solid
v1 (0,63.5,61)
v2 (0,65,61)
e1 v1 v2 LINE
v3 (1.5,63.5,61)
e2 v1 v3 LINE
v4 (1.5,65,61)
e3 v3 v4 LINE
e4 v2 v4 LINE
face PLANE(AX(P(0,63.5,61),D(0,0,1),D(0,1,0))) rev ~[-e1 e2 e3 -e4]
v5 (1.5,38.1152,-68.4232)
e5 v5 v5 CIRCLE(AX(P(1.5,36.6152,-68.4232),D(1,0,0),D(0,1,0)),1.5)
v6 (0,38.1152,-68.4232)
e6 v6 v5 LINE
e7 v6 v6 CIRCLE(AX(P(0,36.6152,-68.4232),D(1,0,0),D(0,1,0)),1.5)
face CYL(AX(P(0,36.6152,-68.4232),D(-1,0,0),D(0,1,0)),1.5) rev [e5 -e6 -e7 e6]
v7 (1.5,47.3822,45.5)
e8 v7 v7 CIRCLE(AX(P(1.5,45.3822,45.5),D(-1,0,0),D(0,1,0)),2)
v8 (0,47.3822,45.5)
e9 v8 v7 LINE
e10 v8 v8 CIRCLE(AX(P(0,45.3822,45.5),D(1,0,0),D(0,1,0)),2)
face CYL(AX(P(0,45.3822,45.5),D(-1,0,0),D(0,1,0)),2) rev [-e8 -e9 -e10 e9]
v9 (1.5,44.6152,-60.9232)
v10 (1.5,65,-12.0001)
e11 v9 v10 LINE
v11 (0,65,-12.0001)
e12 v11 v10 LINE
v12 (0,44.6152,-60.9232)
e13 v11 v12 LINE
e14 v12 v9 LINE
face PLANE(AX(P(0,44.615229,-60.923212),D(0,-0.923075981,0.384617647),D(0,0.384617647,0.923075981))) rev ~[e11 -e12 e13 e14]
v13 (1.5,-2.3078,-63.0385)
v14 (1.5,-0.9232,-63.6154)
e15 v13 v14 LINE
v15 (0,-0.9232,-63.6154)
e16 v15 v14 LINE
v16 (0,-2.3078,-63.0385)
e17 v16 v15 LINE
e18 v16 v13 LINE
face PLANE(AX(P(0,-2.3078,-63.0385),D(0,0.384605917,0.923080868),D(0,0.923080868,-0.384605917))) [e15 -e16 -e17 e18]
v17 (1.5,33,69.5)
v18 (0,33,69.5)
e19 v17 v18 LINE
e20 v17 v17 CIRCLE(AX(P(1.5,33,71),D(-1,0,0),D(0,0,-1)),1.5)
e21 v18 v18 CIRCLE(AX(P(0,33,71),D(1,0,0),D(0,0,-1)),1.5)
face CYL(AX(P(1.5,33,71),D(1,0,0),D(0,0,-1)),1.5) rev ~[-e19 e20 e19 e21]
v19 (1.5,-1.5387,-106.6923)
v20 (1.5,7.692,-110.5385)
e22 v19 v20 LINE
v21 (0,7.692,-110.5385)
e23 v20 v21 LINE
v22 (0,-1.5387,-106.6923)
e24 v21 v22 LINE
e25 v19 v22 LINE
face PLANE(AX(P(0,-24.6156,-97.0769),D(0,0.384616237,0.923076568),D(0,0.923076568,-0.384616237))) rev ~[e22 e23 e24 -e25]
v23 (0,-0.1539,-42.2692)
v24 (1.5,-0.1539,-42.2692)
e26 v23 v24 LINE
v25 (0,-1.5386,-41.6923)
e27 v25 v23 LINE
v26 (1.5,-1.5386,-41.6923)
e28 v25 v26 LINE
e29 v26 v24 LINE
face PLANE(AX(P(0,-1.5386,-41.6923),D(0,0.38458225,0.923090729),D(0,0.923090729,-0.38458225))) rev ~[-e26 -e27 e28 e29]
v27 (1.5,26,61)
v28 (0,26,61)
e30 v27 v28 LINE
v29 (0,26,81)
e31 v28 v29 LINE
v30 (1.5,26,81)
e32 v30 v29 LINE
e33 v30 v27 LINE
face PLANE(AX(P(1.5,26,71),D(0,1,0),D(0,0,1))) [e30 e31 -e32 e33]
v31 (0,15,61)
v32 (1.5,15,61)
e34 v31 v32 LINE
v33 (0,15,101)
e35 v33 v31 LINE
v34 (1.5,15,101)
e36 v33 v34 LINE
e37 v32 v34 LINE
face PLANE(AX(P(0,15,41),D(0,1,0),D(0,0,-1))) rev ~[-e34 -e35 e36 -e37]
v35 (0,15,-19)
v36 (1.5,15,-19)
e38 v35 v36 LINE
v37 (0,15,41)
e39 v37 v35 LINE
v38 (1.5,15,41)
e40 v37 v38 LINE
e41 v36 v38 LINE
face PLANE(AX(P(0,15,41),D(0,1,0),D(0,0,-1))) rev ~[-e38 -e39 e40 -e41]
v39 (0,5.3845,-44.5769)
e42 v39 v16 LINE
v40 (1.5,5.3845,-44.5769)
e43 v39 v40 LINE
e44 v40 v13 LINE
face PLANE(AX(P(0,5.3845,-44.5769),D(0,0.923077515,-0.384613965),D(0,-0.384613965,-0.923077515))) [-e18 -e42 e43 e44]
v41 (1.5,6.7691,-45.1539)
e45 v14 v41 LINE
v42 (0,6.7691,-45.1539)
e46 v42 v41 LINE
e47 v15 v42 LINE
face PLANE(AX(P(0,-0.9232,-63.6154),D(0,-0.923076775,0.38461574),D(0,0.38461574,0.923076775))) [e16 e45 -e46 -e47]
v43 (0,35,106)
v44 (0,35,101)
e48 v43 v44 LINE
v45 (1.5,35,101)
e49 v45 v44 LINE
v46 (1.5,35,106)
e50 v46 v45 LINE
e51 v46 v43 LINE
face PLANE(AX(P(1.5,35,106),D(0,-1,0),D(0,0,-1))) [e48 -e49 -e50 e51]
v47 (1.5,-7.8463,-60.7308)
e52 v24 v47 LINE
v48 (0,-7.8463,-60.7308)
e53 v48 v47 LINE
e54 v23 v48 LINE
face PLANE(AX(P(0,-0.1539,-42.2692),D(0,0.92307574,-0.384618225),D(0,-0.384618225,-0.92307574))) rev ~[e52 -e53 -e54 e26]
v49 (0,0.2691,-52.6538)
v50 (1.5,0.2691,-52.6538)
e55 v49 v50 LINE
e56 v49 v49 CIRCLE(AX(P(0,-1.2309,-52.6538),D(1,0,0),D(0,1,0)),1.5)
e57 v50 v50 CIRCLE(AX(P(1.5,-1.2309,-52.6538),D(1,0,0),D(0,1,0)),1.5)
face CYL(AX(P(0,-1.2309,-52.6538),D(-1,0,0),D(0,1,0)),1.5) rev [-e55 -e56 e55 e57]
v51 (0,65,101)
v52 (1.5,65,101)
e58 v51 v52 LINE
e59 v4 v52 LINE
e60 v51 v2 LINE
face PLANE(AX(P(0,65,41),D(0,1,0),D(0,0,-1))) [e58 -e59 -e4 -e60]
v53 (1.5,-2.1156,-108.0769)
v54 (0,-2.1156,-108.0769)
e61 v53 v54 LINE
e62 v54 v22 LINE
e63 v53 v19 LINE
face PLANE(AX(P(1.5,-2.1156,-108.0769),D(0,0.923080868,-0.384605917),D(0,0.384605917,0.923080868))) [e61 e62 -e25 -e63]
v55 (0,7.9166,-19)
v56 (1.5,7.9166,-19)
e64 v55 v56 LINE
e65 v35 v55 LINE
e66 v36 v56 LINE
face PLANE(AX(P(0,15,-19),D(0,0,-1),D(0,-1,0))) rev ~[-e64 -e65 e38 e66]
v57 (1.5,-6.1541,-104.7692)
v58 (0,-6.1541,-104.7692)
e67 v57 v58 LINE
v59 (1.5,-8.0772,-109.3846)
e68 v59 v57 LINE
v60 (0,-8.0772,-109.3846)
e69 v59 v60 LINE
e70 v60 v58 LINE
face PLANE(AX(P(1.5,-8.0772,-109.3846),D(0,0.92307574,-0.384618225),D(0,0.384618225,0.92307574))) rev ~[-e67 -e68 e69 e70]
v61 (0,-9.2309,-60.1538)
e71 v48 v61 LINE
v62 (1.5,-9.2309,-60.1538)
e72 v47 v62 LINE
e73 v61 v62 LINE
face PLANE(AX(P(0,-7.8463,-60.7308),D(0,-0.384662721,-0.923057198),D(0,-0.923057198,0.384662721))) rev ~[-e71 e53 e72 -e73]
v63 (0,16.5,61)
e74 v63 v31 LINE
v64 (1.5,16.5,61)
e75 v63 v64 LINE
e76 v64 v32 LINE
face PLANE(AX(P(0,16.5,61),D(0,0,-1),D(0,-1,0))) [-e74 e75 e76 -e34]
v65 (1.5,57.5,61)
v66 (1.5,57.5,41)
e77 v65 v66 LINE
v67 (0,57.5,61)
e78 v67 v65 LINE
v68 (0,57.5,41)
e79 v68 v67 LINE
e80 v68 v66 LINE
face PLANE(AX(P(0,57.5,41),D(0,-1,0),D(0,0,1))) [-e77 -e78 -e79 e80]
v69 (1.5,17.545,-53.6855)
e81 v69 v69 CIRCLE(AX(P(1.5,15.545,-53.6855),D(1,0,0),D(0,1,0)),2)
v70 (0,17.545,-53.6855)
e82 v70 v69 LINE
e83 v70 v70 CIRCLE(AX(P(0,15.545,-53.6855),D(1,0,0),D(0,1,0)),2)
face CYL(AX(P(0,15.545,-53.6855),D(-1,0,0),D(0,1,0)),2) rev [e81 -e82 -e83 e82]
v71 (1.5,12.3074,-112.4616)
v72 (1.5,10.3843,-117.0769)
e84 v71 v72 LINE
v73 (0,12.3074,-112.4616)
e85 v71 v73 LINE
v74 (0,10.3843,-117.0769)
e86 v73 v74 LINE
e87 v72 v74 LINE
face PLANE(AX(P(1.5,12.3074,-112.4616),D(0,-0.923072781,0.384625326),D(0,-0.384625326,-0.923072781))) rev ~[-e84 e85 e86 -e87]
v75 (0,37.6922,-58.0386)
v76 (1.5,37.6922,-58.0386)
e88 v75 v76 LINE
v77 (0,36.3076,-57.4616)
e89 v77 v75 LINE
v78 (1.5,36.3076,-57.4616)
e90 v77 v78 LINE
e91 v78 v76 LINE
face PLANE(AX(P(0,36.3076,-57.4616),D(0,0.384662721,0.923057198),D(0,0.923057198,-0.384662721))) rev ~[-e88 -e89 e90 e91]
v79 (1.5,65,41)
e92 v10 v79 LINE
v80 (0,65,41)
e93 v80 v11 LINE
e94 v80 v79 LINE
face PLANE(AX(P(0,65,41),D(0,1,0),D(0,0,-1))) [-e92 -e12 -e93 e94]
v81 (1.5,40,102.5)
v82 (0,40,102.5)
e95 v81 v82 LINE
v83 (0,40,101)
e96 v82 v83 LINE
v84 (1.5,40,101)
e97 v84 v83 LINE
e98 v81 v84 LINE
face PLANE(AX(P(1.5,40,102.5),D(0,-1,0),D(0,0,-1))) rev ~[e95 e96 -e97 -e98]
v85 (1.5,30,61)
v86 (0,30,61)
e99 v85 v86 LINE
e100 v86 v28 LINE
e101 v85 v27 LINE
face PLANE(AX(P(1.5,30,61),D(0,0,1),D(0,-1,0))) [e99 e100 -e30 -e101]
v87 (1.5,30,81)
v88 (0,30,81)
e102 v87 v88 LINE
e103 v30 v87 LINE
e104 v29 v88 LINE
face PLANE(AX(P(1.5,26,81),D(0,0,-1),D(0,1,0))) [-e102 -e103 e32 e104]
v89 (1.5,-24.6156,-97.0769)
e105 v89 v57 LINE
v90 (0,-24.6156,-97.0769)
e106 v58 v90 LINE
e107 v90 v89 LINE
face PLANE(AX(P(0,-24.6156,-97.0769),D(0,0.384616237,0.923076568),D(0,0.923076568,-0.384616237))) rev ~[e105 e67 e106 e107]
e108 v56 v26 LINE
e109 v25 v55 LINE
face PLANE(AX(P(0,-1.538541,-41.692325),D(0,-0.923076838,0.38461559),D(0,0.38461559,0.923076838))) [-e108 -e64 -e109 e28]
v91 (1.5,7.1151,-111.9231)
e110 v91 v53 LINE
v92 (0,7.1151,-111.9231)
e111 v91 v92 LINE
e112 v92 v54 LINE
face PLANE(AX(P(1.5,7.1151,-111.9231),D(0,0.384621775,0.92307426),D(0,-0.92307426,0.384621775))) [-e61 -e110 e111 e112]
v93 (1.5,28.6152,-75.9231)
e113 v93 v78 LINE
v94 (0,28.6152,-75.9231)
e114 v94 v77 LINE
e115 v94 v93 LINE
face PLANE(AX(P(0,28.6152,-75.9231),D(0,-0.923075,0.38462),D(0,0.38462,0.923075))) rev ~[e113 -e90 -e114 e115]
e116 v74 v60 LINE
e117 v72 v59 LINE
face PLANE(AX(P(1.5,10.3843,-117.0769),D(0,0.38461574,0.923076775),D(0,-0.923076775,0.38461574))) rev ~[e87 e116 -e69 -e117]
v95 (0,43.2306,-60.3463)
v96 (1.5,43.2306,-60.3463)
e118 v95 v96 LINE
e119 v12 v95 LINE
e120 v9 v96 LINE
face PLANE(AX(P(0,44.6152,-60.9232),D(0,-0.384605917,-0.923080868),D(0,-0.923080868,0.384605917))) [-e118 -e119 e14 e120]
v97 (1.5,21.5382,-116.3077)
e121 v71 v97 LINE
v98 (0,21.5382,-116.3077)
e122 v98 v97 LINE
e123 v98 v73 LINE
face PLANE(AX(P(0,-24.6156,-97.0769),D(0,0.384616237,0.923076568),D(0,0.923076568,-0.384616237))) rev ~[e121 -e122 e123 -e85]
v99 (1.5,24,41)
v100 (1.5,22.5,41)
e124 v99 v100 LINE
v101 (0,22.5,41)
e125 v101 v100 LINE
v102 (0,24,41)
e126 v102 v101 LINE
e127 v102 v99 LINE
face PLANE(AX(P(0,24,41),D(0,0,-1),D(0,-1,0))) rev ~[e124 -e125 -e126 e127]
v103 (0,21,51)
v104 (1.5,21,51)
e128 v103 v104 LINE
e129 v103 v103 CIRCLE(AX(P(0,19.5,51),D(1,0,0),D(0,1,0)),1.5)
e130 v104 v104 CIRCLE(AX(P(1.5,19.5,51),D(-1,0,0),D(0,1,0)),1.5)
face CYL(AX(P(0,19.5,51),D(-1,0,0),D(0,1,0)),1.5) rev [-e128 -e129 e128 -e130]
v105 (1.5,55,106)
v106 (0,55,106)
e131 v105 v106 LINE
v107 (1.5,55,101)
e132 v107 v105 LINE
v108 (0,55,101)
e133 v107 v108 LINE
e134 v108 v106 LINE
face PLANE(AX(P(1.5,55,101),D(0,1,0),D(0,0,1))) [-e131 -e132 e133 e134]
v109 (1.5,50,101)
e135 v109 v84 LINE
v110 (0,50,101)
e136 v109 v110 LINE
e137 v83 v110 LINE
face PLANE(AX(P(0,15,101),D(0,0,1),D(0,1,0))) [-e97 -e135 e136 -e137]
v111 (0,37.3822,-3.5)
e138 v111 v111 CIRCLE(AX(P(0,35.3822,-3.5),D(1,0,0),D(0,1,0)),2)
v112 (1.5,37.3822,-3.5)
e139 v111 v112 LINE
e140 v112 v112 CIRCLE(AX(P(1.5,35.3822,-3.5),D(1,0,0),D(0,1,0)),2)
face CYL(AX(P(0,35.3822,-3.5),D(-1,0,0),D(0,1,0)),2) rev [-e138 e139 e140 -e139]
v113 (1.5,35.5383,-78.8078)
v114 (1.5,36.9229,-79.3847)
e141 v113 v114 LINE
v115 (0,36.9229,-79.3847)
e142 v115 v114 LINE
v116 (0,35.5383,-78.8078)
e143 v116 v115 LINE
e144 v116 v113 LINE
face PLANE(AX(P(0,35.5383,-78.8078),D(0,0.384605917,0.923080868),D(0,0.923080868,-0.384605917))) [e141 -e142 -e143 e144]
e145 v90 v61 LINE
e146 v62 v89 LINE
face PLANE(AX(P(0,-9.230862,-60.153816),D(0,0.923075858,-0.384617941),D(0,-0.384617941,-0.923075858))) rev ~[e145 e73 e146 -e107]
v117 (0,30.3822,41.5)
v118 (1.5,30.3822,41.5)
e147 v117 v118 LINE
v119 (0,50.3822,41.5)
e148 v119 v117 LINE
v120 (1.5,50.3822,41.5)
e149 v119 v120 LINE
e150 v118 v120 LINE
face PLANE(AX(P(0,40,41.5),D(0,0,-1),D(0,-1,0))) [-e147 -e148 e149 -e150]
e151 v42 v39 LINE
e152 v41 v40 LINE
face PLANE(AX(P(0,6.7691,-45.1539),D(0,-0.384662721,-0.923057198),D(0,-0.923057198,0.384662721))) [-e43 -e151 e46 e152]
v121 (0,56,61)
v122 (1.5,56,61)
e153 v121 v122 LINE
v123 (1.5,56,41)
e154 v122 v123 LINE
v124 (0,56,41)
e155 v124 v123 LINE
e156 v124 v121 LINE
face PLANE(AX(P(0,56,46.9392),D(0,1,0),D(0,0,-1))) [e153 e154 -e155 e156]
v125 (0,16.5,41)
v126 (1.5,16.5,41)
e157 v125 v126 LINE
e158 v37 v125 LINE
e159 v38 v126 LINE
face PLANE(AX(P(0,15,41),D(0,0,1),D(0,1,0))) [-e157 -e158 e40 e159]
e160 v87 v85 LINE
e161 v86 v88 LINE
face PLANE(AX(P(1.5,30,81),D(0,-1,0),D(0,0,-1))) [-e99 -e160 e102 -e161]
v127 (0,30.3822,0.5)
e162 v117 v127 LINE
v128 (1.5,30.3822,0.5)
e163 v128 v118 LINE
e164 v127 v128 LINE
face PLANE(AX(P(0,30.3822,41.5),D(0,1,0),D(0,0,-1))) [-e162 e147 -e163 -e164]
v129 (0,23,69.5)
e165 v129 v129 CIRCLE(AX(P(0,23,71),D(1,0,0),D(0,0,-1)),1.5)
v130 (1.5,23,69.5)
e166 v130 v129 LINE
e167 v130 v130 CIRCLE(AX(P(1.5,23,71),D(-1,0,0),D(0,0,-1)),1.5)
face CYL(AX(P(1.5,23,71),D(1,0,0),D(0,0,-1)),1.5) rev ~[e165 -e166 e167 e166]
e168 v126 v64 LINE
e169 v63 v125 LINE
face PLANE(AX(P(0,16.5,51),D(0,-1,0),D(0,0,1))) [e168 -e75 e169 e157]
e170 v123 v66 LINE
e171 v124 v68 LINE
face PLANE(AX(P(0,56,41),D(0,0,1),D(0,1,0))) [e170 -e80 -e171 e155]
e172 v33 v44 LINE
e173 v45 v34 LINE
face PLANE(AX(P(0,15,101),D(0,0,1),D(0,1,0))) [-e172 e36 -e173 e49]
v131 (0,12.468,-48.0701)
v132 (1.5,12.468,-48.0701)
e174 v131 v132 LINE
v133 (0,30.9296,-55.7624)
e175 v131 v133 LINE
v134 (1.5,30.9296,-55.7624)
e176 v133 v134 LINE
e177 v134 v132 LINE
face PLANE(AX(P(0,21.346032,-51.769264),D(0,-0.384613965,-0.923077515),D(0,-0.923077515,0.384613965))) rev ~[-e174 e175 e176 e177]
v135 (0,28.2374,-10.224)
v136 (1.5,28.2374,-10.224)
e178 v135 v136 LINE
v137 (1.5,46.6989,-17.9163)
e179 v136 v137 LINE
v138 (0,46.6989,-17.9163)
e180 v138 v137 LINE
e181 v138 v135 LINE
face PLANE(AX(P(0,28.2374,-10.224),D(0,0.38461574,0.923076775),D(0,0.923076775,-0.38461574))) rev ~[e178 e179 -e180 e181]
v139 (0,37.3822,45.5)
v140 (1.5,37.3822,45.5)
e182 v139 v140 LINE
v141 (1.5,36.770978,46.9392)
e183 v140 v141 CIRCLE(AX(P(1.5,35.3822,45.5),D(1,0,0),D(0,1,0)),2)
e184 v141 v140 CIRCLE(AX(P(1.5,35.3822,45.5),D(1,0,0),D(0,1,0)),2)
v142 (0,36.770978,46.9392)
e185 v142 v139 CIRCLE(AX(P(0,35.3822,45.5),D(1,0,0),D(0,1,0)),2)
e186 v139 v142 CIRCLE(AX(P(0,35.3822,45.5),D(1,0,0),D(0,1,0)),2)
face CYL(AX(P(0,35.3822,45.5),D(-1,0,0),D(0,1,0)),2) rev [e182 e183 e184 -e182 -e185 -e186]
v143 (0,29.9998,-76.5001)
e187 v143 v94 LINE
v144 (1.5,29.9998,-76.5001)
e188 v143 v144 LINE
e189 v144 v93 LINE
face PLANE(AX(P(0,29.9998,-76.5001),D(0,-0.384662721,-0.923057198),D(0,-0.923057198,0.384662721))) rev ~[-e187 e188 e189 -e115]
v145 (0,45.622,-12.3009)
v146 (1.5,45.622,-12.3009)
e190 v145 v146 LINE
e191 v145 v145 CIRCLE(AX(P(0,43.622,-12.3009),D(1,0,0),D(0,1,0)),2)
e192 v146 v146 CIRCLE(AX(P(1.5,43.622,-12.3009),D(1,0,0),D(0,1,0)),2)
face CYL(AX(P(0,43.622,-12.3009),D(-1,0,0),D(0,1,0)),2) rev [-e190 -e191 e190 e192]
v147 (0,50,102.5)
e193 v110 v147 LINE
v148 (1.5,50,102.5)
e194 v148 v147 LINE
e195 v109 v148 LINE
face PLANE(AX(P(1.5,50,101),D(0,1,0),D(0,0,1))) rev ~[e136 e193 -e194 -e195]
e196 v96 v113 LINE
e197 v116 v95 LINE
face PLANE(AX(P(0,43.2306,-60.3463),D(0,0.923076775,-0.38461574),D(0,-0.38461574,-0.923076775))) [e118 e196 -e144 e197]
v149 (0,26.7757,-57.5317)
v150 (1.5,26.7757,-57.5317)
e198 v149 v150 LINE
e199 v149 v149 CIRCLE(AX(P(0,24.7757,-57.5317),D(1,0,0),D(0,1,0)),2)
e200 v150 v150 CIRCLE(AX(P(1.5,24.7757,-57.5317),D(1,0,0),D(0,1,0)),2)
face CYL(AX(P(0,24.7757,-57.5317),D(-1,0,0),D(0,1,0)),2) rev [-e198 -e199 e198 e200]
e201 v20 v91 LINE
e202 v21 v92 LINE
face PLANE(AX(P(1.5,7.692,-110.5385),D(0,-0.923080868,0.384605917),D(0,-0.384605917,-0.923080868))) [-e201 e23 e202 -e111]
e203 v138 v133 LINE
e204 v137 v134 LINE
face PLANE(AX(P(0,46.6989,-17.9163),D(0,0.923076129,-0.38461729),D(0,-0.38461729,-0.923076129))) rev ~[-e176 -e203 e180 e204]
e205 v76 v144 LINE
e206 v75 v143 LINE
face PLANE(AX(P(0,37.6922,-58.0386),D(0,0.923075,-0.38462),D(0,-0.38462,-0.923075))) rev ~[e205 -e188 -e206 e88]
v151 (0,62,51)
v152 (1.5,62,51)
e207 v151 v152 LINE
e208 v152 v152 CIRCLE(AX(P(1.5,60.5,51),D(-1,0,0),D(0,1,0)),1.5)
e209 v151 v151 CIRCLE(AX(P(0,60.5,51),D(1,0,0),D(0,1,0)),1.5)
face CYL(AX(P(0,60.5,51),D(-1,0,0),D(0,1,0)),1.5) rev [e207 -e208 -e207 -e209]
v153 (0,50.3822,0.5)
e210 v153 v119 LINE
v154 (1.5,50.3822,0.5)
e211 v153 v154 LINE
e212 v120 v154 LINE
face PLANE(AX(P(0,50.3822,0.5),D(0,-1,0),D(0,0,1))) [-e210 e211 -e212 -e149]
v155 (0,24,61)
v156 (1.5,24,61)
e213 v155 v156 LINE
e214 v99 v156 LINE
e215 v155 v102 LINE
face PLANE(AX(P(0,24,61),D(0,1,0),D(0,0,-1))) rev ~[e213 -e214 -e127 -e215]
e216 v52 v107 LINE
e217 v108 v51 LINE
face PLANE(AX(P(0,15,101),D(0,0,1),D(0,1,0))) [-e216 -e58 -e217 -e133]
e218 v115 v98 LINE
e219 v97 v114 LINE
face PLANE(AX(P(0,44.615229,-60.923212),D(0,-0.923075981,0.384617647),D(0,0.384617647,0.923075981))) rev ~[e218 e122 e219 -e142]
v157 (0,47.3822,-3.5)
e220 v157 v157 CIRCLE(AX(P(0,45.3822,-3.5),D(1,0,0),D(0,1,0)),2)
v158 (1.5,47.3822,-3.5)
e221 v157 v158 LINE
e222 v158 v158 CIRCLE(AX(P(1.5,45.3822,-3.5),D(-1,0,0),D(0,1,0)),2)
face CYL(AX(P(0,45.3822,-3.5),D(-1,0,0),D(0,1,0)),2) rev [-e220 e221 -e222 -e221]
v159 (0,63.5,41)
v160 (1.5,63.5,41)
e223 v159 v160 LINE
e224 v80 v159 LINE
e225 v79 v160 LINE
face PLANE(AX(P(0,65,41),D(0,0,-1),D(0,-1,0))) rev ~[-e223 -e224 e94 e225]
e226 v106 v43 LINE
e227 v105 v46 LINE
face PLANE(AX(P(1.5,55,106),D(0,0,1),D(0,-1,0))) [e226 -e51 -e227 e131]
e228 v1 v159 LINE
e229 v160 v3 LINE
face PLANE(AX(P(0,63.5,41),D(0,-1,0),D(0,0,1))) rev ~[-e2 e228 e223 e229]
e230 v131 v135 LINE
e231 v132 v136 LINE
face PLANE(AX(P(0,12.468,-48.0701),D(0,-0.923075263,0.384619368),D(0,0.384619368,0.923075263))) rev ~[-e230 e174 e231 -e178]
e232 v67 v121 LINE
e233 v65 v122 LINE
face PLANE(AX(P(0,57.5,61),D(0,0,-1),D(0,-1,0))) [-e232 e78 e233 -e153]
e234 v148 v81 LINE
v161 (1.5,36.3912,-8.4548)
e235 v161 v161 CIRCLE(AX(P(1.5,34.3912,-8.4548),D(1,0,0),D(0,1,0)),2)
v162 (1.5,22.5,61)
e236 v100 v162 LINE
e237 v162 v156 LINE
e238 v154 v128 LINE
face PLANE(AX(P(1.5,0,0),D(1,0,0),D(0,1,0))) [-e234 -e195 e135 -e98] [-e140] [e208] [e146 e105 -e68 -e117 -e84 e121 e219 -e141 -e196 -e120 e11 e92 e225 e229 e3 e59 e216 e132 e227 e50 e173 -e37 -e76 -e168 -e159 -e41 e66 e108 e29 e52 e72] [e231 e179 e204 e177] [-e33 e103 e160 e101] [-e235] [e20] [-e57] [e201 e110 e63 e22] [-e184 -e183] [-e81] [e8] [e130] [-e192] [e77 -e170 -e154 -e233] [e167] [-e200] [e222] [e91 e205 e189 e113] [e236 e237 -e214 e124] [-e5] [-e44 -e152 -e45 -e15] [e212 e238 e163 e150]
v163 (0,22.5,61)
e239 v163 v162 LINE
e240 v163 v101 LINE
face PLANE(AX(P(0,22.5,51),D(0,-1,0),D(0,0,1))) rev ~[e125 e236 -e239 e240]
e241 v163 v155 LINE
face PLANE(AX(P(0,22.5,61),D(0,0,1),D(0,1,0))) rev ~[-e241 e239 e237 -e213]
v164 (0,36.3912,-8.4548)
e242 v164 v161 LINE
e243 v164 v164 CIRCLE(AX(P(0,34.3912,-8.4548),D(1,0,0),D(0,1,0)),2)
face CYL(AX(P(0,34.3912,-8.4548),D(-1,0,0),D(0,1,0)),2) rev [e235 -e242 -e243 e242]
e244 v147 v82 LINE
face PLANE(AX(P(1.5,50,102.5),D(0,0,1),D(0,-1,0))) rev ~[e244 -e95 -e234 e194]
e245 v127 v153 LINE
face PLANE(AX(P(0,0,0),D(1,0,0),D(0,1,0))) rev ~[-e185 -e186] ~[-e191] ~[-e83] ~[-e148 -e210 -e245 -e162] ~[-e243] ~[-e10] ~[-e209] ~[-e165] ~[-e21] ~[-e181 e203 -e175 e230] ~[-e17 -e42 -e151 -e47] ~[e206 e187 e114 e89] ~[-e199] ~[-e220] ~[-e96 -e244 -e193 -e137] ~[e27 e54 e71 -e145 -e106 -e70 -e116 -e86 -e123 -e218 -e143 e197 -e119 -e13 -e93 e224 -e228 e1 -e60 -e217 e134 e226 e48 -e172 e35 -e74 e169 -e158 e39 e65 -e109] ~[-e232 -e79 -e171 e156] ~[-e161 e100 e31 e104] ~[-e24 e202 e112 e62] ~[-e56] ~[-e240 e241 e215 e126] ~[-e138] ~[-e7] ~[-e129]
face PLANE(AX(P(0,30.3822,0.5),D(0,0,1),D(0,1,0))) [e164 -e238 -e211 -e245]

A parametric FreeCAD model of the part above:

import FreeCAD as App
import Part
import Sketcher
Q = App.Units.Quantity


def add_polygon(sketch, points):
    """Adds a closed chain of lines whose ends are joined by coincident constraints."""
    first, n = sketch.GeometryCount, len(points)
    for a, b in zip(points, points[1:] + points[:1]):
        sketch.addGeometry(Part.LineSegment(App.Vector(*a, 0), App.Vector(*b, 0)), False)
    for i in range(n):
        sketch.addConstraint(Sketcher.Constraint("Coincident", first + i, 2, first + (i + 1) % n, 1))

doc = App.newDocument("Part")
body = doc.addObject("PartDesign::Body", "Body")

# Sketch on YZ plane
sketch1 = body.newObject("Sketcher::SketchObject", "Sketch")
sketch1.AttachmentSupport = (doc.getObject("YZ_Plane"), [""])
sketch1.MapMode = "FlatFace"
add_polygon(sketch1, [(15, -19), (7.9166, -19), (-5.3847, -50.9231), (-24.6156, -97.0769), (21.5382, -116.3077), (65, -12.0001), (65, 101), (15, 101)])  # lines 0-7
add_polygon(sketch1, [(30.3822, 41.5), (50.3822, 41.5), (50.3822, 0.5), (30.3822, 0.5)])  # lines 8-11
sketch1.addGeometry(Part.Circle(App.Vector(35.3822, -3.5, 0), App.Vector(0, 0, 1), 2), False)  # 12
sketch1.addGeometry(Part.Circle(App.Vector(35.3822, 45.5, 0), App.Vector(0, 0, 1), 2), False)  # 13
sketch1.addGeometry(Part.Circle(App.Vector(45.3822, 45.5, 0), App.Vector(0, 0, 1), 2), False)  # 14
sketch1.addGeometry(Part.Circle(App.Vector(45.3822, -3.5, 0), App.Vector(0, 0, 1), 2), False)  # 15
sketch1.addGeometry(Part.Circle(App.Vector(34.3912, -8.4548, 0), App.Vector(0, 0, 1), 2), False)  # 16
add_polygon(sketch1, [(28.2374, -10.224), (46.6989, -17.9163), (30.9296, -55.7624), (12.468, -48.0701)])  # lines 17-20
sketch1.addGeometry(Part.Circle(App.Vector(15.545, -53.6855, 0), App.Vector(0, 0, 1), 2), False)  # 21
sketch1.addGeometry(Part.Circle(App.Vector(43.622, -12.3009, 0), App.Vector(0, 0, 1), 2), False)  # 22
sketch1.addGeometry(Part.Circle(App.Vector(24.7757, -57.5317, 0), App.Vector(0, 0, 1), 2), False)  # 23
sketch1.addConstraint(Sketcher.Constraint("Horizontal", 0))
sketch1.addConstraint(Sketcher.Constraint("Vertical", 5))
sketch1.addConstraint(Sketcher.Constraint("Horizontal", 6))
sketch1.addConstraint(Sketcher.Constraint("Vertical", 7))
sketch1.addConstraint(Sketcher.Constraint("Horizontal", 8))
sketch1.addConstraint(Sketcher.Constraint("Vertical", 9))
sketch1.addConstraint(Sketcher.Constraint("Horizontal", 10))
sketch1.addConstraint(Sketcher.Constraint("Vertical", 11))
sketch1.addConstraint(Sketcher.Constraint("Equal", 12, 13))
sketch1.addConstraint(Sketcher.Constraint("Equal", 13, 14))
sketch1.addConstraint(Sketcher.Constraint("Equal", 14, 15))
sketch1.addConstraint(Sketcher.Constraint("Equal", 15, 16))
sketch1.addConstraint(Sketcher.Constraint("Equal", 16, 21))
sketch1.addConstraint(Sketcher.Constraint("Equal", 21, 22))
sketch1.addConstraint(Sketcher.Constraint("Equal", 22, 23))
sketch1.addConstraint(Sketcher.Constraint("Parallel", 1, 2))
sketch1.addConstraint(Sketcher.Constraint("Perpendicular", 2, 3))
sketch1.addConstraint(Sketcher.Constraint("Perpendicular", 3, 4))
sketch1.addConstraint(Sketcher.Constraint("Perpendicular", 4, 17))
sketch1.addConstraint(Sketcher.Constraint("Perpendicular", 17, 18))
sketch1.addConstraint(Sketcher.Constraint("Perpendicular", 18, 19))
sketch1.addConstraint(Sketcher.Constraint("Perpendicular", 19, 20))
sketch1.addConstraint(Sketcher.Constraint("Horizontal", 13, 3, 14, 3))
sketch1.addConstraint(Sketcher.Constraint("Horizontal", 12, 3, 15, 3))
sketch1.addConstraint(Sketcher.Constraint("Vertical", 12, 3, 13, 3))
sketch1.addConstraint(Sketcher.Constraint("Vertical", 14, 3, 15, 3))
sketch1.addConstraint(Sketcher.Constraint("Equal", 2, 3))
sketch1.addConstraint(Sketcher.Constraint("Diameter", 12, Q("4 mm")))
sketch1.addConstraint(Sketcher.Constraint("DistanceX", 6, 2, 6, 1, Q("50 mm")))
sketch1.addConstraint(Sketcher.Constraint("DistanceX", 8, 1, 8, 2, Q("20 mm")))
sketch1.addConstraint(Sketcher.Constraint("DistanceY", 9, 2, 9, 1, Q("41 mm")))
sketch1.addConstraint(Sketcher.Constraint("Distance", 2, Q("50 mm")))
sketch1.addConstraint(Sketcher.Constraint("Distance", 17, Q("20 mm")))
sketch1.addConstraint(Sketcher.Constraint("Distance", 18, Q("41 mm")))
sketch1.addConstraint(Sketcher.Constraint("DistanceX", -1, 1, 6, 2, Q("15 mm")))
sketch1.addConstraint(Sketcher.Constraint("DistanceX", 13, 3, 14, 3, Q("10 mm")))
sketch1.addConstraint(Sketcher.Constraint("DistanceX", 14, 3, 8, 2, Q("5 mm")))
sketch1.addConstraint(Sketcher.Constraint("DistanceY", 8, 2, 14, 3, Q("4 mm")))
sketch1.addConstraint(Sketcher.Constraint("DistanceY", 15, 3, 9, 2, Q("4 mm")))
sketch1.addConstraint(Sketcher.Constraint("DistanceY", 5, 1, 5, 2, Q("113 mm")))
sketch1.addConstraint(Sketcher.Constraint("DistanceY", 7, 2, 7, 1, Q("120 mm")))
sketch1.addConstraint(Sketcher.Constraint("Distance", 4, Q("113 mm")))
sketch1.addConstraint(Sketcher.Constraint("DistanceY", 0, 2, -1, 1, Q("19 mm")))
sketch1.addConstraint(Sketcher.Constraint("DistanceY", 12, 3, -1, 1, Q("3.5 mm")))
sketch1.addConstraint(Sketcher.Constraint("Angle", 1, Q("-112.6199 deg")))
sketch1.addConstraint(Sketcher.Constraint("DistanceY", 19, 2, -1, 1, Q("48.07 mm")))
sketch1.addConstraint(Sketcher.Constraint("DistanceX", -1, 1, 21, 3, Q("15.545 mm")))
sketch1.addConstraint(Sketcher.Constraint("DistanceX", -1, 1, 22, 3, Q("43.622 mm")))
sketch1.addConstraint(Sketcher.Constraint("DistanceY", 22, 3, -1, 1, Q("12.301 mm")))
sketch1.addConstraint(Sketcher.Constraint("DistanceX", -1, 1, 17, 2, Q("46.699 mm")))
sketch1.addConstraint(Sketcher.Constraint("DistanceX", 16, 3, 12, 3, Q("0.991 mm")))
sketch1.addConstraint(Sketcher.Constraint("DistanceY", 22, 3, 16, 3, Q("3.846 mm")))
sketch1.addConstraint(Sketcher.Constraint("DistanceY", 23, 3, 16, 3, Q("49.077 mm")))
sketch1.addConstraint(Sketcher.Constraint("DistanceX", 1, 2, 16, 3, Q("39.776 mm")))
sketch1.addConstraint(Sketcher.Constraint("DistanceX", 23, 3, 18, 2, Q("6.154 mm")))
sketch1.addConstraint(Sketcher.Constraint("DistanceY", 18, 2, 21, 3, Q("2.077 mm")))
pad1 = body.newObject("PartDesign::Pad", "Pad")
pad1.Profile = sketch1
pad1.Length = 1.5

# Sketch on YZ plane
sketch2 = body.newObject("Sketcher::SketchObject", "Sketch001")
sketch2.AttachmentSupport = (doc.getObject("YZ_Plane"), [""])
sketch2.MapMode = "FlatFace"
sketch2.AttachmentOffset = App.Placement(App.Vector(0, 0, 1.5), App.Rotation())
add_polygon(sketch2, [(50, 101), (55, 101), (55, 106), (35, 106), (35, 101), (40, 101), (40, 102.5), (50, 102.5)])  # lines 0-7
sketch2.addConstraint(Sketcher.Constraint("Horizontal", 0))
sketch2.addConstraint(Sketcher.Constraint("Vertical", 1))
sketch2.addConstraint(Sketcher.Constraint("Horizontal", 2))
sketch2.addConstraint(Sketcher.Constraint("Vertical", 3))
sketch2.addConstraint(Sketcher.Constraint("Horizontal", 4))
sketch2.addConstraint(Sketcher.Constraint("Vertical", 5))
sketch2.addConstraint(Sketcher.Constraint("Horizontal", 6))
sketch2.addConstraint(Sketcher.Constraint("Vertical", 7))
sketch2.addConstraint(Sketcher.Constraint("Horizontal", 0, 2, 3, 2))
sketch2.addConstraint(Sketcher.Constraint("Equal", 0, 4))
sketch2.addConstraint(Sketcher.Constraint("Equal", 4, 1))
sketch2.addConstraint(Sketcher.Constraint("DistanceX", 0, 1, 0, 2, Q("5 mm")))
sketch2.addConstraint(Sketcher.Constraint("DistanceX", 2, 2, 2, 1, Q("20 mm")))
sketch2.addConstraint(Sketcher.Constraint("DistanceY", 5, 1, 5, 2, Q("1.5 mm")))
sketch2.addConstraint(Sketcher.Constraint("DistanceX", -1, 1, 0, 2, Q("55 mm")))
sketch2.addConstraint(Sketcher.Constraint("DistanceY", -1, 1, 0, 2, Q("101 mm")))
pad2 = body.newObject("PartDesign::Pad", "Pad001")
pad2.Profile = sketch2
pad2.Length = 1.5
pad2.Reversed = True

# Sketch on YZ plane
sketch3 = body.newObject("Sketcher::SketchObject", "Sketch002")
sketch3.AttachmentSupport = (doc.getObject("YZ_Plane"), [""])
sketch3.MapMode = "FlatFace"
sketch3.AttachmentOffset = App.Placement(App.Vector(0, 0, 1.5), App.Rotation())
add_polygon(sketch3, [(10.3843, -117.0769), (12.307427, -112.461535), (7.692, -110.5385), (7.1151, -111.9231), (-2.1156, -108.0769), (-1.5387, -106.6923), (-6.1541, -104.7692), (-8.0772, -109.3846)])  # lines 0-7
sketch3.addConstraint(Sketcher.Constraint("Perpendicular", 0, 1))
sketch3.addConstraint(Sketcher.Constraint("Perpendicular", 1, 2))
sketch3.addConstraint(Sketcher.Constraint("Perpendicular", 2, 3))
sketch3.addConstraint(Sketcher.Constraint("Perpendicular", 3, 4))
sketch3.addConstraint(Sketcher.Constraint("Perpendicular", 4, 5))
sketch3.addConstraint(Sketcher.Constraint("Perpendicular", 5, 6))
sketch3.addConstraint(Sketcher.Constraint("Perpendicular", 6, 7))
sketch3.addConstraint(Sketcher.Constraint("Equal", 0, 1))
sketch3.addConstraint(Sketcher.Constraint("Equal", 2, 4))
sketch3.addConstraint(Sketcher.Constraint("Equal", 1, 5))
sketch3.addConstraint(Sketcher.Constraint("Distance", 0, Q("5 mm")))
sketch3.addConstraint(Sketcher.Constraint("Distance", 3, Q("10 mm")))
sketch3.addConstraint(Sketcher.Constraint("Distance", 2, Q("1.5 mm")))
sketch3.addConstraint(Sketcher.Constraint("DistanceY", 7, 2, 3, 2, Q("9 mm")))
sketch3.addConstraint(Sketcher.Constraint("DistanceX", -1, 1, 1, 2, Q("7.692 mm")))
sketch3.addConstraint(Sketcher.Constraint("DistanceY", 2, 2, -1, 1, Q("111.923 mm")))
pad3 = body.newObject("PartDesign::Pad", "Pad002")
pad3.Profile = sketch3
pad3.Length = 1.5
pad3.Reversed = True

# Sketch on YZ plane
sketch4 = body.newObject("Sketcher::SketchObject", "Sketch003")
sketch4.AttachmentSupport = (doc.getObject("YZ_Plane"), [""])
sketch4.MapMode = "FlatFace"
add_polygon(sketch4, [(15, 41), (16.5, 41), (16.5, 61), (15, 61)])  # lines 0-3
sketch4.addGeometry(Part.Circle(App.Vector(19.5, 51, 0), App.Vector(0, 0, 1), 1.5), False)  # 4
add_polygon(sketch4, [(63.5, 41), (65, 41), (65, 61), (63.5, 61)])  # lines 5-8
add_polygon(sketch4, [(-0.1539, -42.2692), (-1.538541, -41.692325), (-5.3847, -50.9231), (-9.2309, -60.1538), (-7.8463, -60.7308)])  # lines 9-13
add_polygon(sketch4, [(22.5, 61), (22.5, 41), (24, 41), (24, 61)])  # lines 14-17
add_polygon(sketch4, [(57.5, 41), (57.5, 61), (56, 61), (56, 41)])  # lines 18-21
sketch4.addGeometry(Part.Circle(App.Vector(60.5, 51, 0), App.Vector(0, 0, 1), 1.5), False)  # 22
sketch4.addGeometry(Part.Circle(App.Vector(-1.2309, -52.6538, 0), App.Vector(0, 0, 1), 1.5), False)  # 23
add_polygon(sketch4, [(6.7691, -45.1539), (5.3845, -44.5769), (-2.3078, -63.0385), (-0.9232, -63.6154)])  # lines 24-27
sketch4.addConstraint(Sketcher.Constraint("Horizontal", 0))
sketch4.addConstraint(Sketcher.Constraint("Vertical", 1))
sketch4.addConstraint(Sketcher.Constraint("Horizontal", 2))
sketch4.addConstraint(Sketcher.Constraint("Vertical", 3))
sketch4.addConstraint(Sketcher.Constraint("Horizontal", 5))
sketch4.addConstraint(Sketcher.Constraint("Vertical", 6))
sketch4.addConstraint(Sketcher.Constraint("Horizontal", 7))
sketch4.addConstraint(Sketcher.Constraint("Vertical", 8))
sketch4.addConstraint(Sketcher.Constraint("Vertical", 14))
sketch4.addConstraint(Sketcher.Constraint("Horizontal", 15))
sketch4.addConstraint(Sketcher.Constraint("Vertical", 16))
sketch4.addConstraint(Sketcher.Constraint("Horizontal", 17))
sketch4.addConstraint(Sketcher.Constraint("Vertical", 18))
sketch4.addConstraint(Sketcher.Constraint("Horizontal", 19))
sketch4.addConstraint(Sketcher.Constraint("Vertical", 20))
sketch4.addConstraint(Sketcher.Constraint("Horizontal", 21))
sketch4.addConstraint(Sketcher.Constraint("Equal", 4, 22))
sketch4.addConstraint(Sketcher.Constraint("Equal", 22, 23))
sketch4.addConstraint(Sketcher.Constraint("Perpendicular", 9, 10))
sketch4.addConstraint(Sketcher.Constraint("Parallel", 10, 11))
sketch4.addConstraint(Sketcher.Constraint("Perpendicular", 11, 12))
sketch4.addConstraint(Sketcher.Constraint("Perpendicular", 12, 13))
sketch4.addConstraint(Sketcher.Constraint("Perpendicular", 13, 24))
sketch4.addConstraint(Sketcher.Constraint("Perpendicular", 24, 25))
sketch4.addConstraint(Sketcher.Constraint("Perpendicular", 25, 26))
sketch4.addConstraint(Sketcher.Constraint("Perpendicular", 26, 27))
sketch4.addConstraint(Sketcher.Constraint("Horizontal", 4, 3, 22, 3))
sketch4.addConstraint(Sketcher.Constraint("Horizontal", 3, 2, 5, 2))
sketch4.addConstraint(Sketcher.Constraint("Horizontal", 2, 2, 6, 2))
sketch4.addConstraint(Sketcher.Constraint("Horizontal", 8, 2, 14, 2))
sketch4.addConstraint(Sketcher.Constraint("Horizontal", 7, 2, 16, 2))
sketch4.addConstraint(Sketcher.Constraint("Horizontal", 17, 2, 18, 2))
sketch4.addConstraint(Sketcher.Constraint("Horizontal", 15, 2, 20, 2))
sketch4.addConstraint(Sketcher.Constraint("Equal", 2, 5))
sketch4.addConstraint(Sketcher.Constraint("Equal", 7, 15))
sketch4.addConstraint(Sketcher.Constraint("Equal", 17, 19))
sketch4.addConstraint(Sketcher.Constraint("Equal", 10, 11))
sketch4.addConstraint(Sketcher.Constraint("Equal", 12, 24))
sketch4.addConstraint(Sketcher.Constraint("Equal", 13, 25))
sketch4.addConstraint(Sketcher.Constraint("Diameter", 4, Q("3 mm")))
sketch4.addConstraint(Sketcher.Constraint("DistanceY", 1, 1, 1, 2, Q("20 mm")))
sketch4.addConstraint(Sketcher.Constraint("Distance", 10, Q("10 mm")))
sketch4.addConstraint(Sketcher.Constraint("DistanceX", 0, 1, 0, 2, Q("1.5 mm")))
sketch4.addConstraint(Sketcher.Constraint("DistanceY", -1, 1, 4, 3, Q("51 mm")))
sketch4.addConstraint(Sketcher.Constraint("DistanceY", -1, 1, 0, 2, Q("41 mm")))
sketch4.addConstraint(Sketcher.Constraint("DistanceX", -1, 1, 2, 2, Q("15 mm")))
sketch4.addConstraint(Sketcher.Constraint("DistanceX", 4, 3, 22, 3, Q("41 mm")))
sketch4.addConstraint(Sketcher.Constraint("DistanceX", 0, 2, 4, 3, Q("3 mm")))
sketch4.addConstraint(Sketcher.Constraint("DistanceX", 3, 2, 5, 2, Q("50 mm")))
sketch4.addConstraint(Sketcher.Constraint("DistanceX", 0, 2, 14, 2, Q("6 mm")))
sketch4.addConstraint(Sketcher.Constraint("DistanceX", 18, 2, 7, 2, Q("6 mm")))
sketch4.addConstraint(Sketcher.Constraint("Distance", 9, Q("1.5 mm")))
sketch4.addConstraint(Sketcher.Constraint("DistanceX", 11, 2, 23, 3, Q("8 mm")))
sketch4.addConstraint(Sketcher.Constraint("DistanceX", 23, 3, 27, 2, Q("8 mm")))
sketch4.addConstraint(Sketcher.Constraint("Angle", 10, Q("-112.6199 deg")))
sketch4.addConstraint(Sketcher.Constraint("DistanceY", 11, 2, 23, 3, Q("7.5 mm")))
sketch4.addConstraint(Sketcher.Constraint("DistanceY", 23, 3, 27, 2, Q("7.5 mm")))
sketch4.addConstraint(Sketcher.Constraint("DistanceX", 23, 3, -1, 1, Q("1.231 mm")))
sketch4.addConstraint(Sketcher.Constraint("DistanceY", 10, 2, -1, 1, Q("50.923 mm")))
pocket1 = body.newObject("PartDesign::Pocket", "Pocket")
pocket1.Profile = sketch4
pocket1.Length = 1.5
pocket1.Reversed = True

# Sketch on YZ plane
sketch5 = body.newObject("Sketcher::SketchObject", "Sketch004")
sketch5.AttachmentSupport = (doc.getObject("YZ_Plane"), [""])
sketch5.MapMode = "FlatFace"
add_polygon(sketch5, [(44.6152, -60.9232), (43.2306, -60.3463), (35.5383, -78.8078), (36.9229, -79.3847)])  # lines 0-3
add_polygon(sketch5, [(28.6152, -75.9231), (29.9998, -76.5001), (37.6922, -58.0386), (36.3076, -57.4616)])  # lines 4-7
sketch5.addGeometry(Part.Circle(App.Vector(36.6152, -68.4232, 0), App.Vector(0, 0, 1), 1.5), False)  # 8
sketch5.addConstraint(Sketcher.Constraint("Perpendicular", 0, 1))
sketch5.addConstraint(Sketcher.Constraint("Perpendicular", 1, 2))
sketch5.addConstraint(Sketcher.Constraint("Perpendicular", 2, 3))
sketch5.addConstraint(Sketcher.Constraint("Perpendicular", 3, 4))
sketch5.addConstraint(Sketcher.Constraint("Perpendicular", 4, 5))
sketch5.addConstraint(Sketcher.Constraint("Perpendicular", 5, 6))
sketch5.addConstraint(Sketcher.Constraint("Perpendicular", 6, 7))
sketch5.addConstraint(Sketcher.Constraint("Equal", 2, 4))
sketch5.addConstraint(Sketcher.Constraint("Equal", 3, 5))
sketch5.addConstraint(Sketcher.Constraint("Diameter", 8, Q("3 mm")))
sketch5.addConstraint(Sketcher.Constraint("Distance", 1, Q("20 mm")))
sketch5.addConstraint(Sketcher.Constraint("Distance", 0, Q("1.5 mm")))
sketch5.addConstraint(Sketcher.Constraint("DistanceX", 8, 3, 3, 2, Q("8 mm")))
sketch5.addConstraint(Sketcher.Constraint("DistanceX", 7, 2, 8, 3, Q("8 mm")))
sketch5.addConstraint(Sketcher.Constraint("DistanceY", 4, 2, -1, 1, Q("76.5 mm")))
sketch5.addConstraint(Sketcher.Constraint("Angle", 0, Q("157.3807 deg")))
sketch5.addConstraint(Sketcher.Constraint("DistanceY", 8, 3, 3, 2, Q("7.5 mm")))
sketch5.addConstraint(Sketcher.Constraint("DistanceY", 7, 2, 8, 3, Q("7.5 mm")))
sketch5.addConstraint(Sketcher.Constraint("DistanceX", -1, 1, 2, 2, Q("36.923 mm")))
pocket2 = body.newObject("PartDesign::Pocket", "Pocket001")
pocket2.Profile = sketch5
pocket2.Length = 1.5
pocket2.Reversed = True

# Sketch on YZ plane
sketch6 = body.newObject("Sketcher::SketchObject", "Sketch005")
sketch6.AttachmentSupport = (doc.getObject("YZ_Plane"), [""])
sketch6.MapMode = "FlatFace"
sketch6.AttachmentOffset = App.Placement(App.Vector(0, 0, 1.5), App.Rotation())
sketch6.addGeometry(Part.Circle(App.Vector(33, 71, 0), App.Vector(0, 0, 1), 1.5), False)  # 0
add_polygon(sketch6, [(30, 81), (26, 81), (26, 61), (30, 61)])  # lines 1-4
sketch6.addConstraint(Sketcher.Constraint("Horizontal", 1))
sketch6.addConstraint(Sketcher.Constraint("Vertical", 2))
sketch6.addConstraint(Sketcher.Constraint("Horizontal", 3))
sketch6.addConstraint(Sketcher.Constraint("Vertical", 4))
sketch6.addConstraint(Sketcher.Constraint("Diameter", 0, Q("3 mm")))
sketch6.addConstraint(Sketcher.Constraint("DistanceX", 1, 2, 1, 1, Q("4 mm")))
sketch6.addConstraint(Sketcher.Constraint("DistanceY", 2, 2, 2, 1, Q("20 mm")))
sketch6.addConstraint(Sketcher.Constraint("DistanceY", 0, 3, 1, 2, Q("10 mm")))
sketch6.addConstraint(Sketcher.Constraint("DistanceX", 3, 2, 0, 3, Q("3 mm")))
sketch6.addConstraint(Sketcher.Constraint("DistanceX", -1, 1, 0, 3, Q("33 mm")))
sketch6.addConstraint(Sketcher.Constraint("DistanceY", -1, 1, 0, 3, Q("71 mm")))
pocket3 = body.newObject("PartDesign::Pocket", "Pocket002")
pocket3.Profile = sketch6
pocket3.Length = 1.5

# Sketch on YZ plane
sketch7 = body.newObject("Sketcher::SketchObject", "Sketch006")
sketch7.AttachmentSupport = (doc.getObject("YZ_Plane"), [""])
sketch7.MapMode = "FlatFace"
sketch7.AttachmentOffset = App.Placement(App.Vector(0, 0, 1.5), App.Rotation())
sketch7.addGeometry(Part.Circle(App.Vector(23, 71, 0), App.Vector(0, 0, 1), 1.5), False)
sketch7.addConstraint(Sketcher.Constraint("Diameter", 0, Q("3 mm")))
sketch7.addConstraint(Sketcher.Constraint("DistanceX", -1, 1, 0, 3, Q("23 mm")))
sketch7.addConstraint(Sketcher.Constraint("DistanceY", -1, 1, 0, 3, Q("71 mm")))
pocket4 = body.newObject("PartDesign::Pocket", "Pocket003")
pocket4.Profile = sketch7
pocket4.Length = 10

doc.recompute()
